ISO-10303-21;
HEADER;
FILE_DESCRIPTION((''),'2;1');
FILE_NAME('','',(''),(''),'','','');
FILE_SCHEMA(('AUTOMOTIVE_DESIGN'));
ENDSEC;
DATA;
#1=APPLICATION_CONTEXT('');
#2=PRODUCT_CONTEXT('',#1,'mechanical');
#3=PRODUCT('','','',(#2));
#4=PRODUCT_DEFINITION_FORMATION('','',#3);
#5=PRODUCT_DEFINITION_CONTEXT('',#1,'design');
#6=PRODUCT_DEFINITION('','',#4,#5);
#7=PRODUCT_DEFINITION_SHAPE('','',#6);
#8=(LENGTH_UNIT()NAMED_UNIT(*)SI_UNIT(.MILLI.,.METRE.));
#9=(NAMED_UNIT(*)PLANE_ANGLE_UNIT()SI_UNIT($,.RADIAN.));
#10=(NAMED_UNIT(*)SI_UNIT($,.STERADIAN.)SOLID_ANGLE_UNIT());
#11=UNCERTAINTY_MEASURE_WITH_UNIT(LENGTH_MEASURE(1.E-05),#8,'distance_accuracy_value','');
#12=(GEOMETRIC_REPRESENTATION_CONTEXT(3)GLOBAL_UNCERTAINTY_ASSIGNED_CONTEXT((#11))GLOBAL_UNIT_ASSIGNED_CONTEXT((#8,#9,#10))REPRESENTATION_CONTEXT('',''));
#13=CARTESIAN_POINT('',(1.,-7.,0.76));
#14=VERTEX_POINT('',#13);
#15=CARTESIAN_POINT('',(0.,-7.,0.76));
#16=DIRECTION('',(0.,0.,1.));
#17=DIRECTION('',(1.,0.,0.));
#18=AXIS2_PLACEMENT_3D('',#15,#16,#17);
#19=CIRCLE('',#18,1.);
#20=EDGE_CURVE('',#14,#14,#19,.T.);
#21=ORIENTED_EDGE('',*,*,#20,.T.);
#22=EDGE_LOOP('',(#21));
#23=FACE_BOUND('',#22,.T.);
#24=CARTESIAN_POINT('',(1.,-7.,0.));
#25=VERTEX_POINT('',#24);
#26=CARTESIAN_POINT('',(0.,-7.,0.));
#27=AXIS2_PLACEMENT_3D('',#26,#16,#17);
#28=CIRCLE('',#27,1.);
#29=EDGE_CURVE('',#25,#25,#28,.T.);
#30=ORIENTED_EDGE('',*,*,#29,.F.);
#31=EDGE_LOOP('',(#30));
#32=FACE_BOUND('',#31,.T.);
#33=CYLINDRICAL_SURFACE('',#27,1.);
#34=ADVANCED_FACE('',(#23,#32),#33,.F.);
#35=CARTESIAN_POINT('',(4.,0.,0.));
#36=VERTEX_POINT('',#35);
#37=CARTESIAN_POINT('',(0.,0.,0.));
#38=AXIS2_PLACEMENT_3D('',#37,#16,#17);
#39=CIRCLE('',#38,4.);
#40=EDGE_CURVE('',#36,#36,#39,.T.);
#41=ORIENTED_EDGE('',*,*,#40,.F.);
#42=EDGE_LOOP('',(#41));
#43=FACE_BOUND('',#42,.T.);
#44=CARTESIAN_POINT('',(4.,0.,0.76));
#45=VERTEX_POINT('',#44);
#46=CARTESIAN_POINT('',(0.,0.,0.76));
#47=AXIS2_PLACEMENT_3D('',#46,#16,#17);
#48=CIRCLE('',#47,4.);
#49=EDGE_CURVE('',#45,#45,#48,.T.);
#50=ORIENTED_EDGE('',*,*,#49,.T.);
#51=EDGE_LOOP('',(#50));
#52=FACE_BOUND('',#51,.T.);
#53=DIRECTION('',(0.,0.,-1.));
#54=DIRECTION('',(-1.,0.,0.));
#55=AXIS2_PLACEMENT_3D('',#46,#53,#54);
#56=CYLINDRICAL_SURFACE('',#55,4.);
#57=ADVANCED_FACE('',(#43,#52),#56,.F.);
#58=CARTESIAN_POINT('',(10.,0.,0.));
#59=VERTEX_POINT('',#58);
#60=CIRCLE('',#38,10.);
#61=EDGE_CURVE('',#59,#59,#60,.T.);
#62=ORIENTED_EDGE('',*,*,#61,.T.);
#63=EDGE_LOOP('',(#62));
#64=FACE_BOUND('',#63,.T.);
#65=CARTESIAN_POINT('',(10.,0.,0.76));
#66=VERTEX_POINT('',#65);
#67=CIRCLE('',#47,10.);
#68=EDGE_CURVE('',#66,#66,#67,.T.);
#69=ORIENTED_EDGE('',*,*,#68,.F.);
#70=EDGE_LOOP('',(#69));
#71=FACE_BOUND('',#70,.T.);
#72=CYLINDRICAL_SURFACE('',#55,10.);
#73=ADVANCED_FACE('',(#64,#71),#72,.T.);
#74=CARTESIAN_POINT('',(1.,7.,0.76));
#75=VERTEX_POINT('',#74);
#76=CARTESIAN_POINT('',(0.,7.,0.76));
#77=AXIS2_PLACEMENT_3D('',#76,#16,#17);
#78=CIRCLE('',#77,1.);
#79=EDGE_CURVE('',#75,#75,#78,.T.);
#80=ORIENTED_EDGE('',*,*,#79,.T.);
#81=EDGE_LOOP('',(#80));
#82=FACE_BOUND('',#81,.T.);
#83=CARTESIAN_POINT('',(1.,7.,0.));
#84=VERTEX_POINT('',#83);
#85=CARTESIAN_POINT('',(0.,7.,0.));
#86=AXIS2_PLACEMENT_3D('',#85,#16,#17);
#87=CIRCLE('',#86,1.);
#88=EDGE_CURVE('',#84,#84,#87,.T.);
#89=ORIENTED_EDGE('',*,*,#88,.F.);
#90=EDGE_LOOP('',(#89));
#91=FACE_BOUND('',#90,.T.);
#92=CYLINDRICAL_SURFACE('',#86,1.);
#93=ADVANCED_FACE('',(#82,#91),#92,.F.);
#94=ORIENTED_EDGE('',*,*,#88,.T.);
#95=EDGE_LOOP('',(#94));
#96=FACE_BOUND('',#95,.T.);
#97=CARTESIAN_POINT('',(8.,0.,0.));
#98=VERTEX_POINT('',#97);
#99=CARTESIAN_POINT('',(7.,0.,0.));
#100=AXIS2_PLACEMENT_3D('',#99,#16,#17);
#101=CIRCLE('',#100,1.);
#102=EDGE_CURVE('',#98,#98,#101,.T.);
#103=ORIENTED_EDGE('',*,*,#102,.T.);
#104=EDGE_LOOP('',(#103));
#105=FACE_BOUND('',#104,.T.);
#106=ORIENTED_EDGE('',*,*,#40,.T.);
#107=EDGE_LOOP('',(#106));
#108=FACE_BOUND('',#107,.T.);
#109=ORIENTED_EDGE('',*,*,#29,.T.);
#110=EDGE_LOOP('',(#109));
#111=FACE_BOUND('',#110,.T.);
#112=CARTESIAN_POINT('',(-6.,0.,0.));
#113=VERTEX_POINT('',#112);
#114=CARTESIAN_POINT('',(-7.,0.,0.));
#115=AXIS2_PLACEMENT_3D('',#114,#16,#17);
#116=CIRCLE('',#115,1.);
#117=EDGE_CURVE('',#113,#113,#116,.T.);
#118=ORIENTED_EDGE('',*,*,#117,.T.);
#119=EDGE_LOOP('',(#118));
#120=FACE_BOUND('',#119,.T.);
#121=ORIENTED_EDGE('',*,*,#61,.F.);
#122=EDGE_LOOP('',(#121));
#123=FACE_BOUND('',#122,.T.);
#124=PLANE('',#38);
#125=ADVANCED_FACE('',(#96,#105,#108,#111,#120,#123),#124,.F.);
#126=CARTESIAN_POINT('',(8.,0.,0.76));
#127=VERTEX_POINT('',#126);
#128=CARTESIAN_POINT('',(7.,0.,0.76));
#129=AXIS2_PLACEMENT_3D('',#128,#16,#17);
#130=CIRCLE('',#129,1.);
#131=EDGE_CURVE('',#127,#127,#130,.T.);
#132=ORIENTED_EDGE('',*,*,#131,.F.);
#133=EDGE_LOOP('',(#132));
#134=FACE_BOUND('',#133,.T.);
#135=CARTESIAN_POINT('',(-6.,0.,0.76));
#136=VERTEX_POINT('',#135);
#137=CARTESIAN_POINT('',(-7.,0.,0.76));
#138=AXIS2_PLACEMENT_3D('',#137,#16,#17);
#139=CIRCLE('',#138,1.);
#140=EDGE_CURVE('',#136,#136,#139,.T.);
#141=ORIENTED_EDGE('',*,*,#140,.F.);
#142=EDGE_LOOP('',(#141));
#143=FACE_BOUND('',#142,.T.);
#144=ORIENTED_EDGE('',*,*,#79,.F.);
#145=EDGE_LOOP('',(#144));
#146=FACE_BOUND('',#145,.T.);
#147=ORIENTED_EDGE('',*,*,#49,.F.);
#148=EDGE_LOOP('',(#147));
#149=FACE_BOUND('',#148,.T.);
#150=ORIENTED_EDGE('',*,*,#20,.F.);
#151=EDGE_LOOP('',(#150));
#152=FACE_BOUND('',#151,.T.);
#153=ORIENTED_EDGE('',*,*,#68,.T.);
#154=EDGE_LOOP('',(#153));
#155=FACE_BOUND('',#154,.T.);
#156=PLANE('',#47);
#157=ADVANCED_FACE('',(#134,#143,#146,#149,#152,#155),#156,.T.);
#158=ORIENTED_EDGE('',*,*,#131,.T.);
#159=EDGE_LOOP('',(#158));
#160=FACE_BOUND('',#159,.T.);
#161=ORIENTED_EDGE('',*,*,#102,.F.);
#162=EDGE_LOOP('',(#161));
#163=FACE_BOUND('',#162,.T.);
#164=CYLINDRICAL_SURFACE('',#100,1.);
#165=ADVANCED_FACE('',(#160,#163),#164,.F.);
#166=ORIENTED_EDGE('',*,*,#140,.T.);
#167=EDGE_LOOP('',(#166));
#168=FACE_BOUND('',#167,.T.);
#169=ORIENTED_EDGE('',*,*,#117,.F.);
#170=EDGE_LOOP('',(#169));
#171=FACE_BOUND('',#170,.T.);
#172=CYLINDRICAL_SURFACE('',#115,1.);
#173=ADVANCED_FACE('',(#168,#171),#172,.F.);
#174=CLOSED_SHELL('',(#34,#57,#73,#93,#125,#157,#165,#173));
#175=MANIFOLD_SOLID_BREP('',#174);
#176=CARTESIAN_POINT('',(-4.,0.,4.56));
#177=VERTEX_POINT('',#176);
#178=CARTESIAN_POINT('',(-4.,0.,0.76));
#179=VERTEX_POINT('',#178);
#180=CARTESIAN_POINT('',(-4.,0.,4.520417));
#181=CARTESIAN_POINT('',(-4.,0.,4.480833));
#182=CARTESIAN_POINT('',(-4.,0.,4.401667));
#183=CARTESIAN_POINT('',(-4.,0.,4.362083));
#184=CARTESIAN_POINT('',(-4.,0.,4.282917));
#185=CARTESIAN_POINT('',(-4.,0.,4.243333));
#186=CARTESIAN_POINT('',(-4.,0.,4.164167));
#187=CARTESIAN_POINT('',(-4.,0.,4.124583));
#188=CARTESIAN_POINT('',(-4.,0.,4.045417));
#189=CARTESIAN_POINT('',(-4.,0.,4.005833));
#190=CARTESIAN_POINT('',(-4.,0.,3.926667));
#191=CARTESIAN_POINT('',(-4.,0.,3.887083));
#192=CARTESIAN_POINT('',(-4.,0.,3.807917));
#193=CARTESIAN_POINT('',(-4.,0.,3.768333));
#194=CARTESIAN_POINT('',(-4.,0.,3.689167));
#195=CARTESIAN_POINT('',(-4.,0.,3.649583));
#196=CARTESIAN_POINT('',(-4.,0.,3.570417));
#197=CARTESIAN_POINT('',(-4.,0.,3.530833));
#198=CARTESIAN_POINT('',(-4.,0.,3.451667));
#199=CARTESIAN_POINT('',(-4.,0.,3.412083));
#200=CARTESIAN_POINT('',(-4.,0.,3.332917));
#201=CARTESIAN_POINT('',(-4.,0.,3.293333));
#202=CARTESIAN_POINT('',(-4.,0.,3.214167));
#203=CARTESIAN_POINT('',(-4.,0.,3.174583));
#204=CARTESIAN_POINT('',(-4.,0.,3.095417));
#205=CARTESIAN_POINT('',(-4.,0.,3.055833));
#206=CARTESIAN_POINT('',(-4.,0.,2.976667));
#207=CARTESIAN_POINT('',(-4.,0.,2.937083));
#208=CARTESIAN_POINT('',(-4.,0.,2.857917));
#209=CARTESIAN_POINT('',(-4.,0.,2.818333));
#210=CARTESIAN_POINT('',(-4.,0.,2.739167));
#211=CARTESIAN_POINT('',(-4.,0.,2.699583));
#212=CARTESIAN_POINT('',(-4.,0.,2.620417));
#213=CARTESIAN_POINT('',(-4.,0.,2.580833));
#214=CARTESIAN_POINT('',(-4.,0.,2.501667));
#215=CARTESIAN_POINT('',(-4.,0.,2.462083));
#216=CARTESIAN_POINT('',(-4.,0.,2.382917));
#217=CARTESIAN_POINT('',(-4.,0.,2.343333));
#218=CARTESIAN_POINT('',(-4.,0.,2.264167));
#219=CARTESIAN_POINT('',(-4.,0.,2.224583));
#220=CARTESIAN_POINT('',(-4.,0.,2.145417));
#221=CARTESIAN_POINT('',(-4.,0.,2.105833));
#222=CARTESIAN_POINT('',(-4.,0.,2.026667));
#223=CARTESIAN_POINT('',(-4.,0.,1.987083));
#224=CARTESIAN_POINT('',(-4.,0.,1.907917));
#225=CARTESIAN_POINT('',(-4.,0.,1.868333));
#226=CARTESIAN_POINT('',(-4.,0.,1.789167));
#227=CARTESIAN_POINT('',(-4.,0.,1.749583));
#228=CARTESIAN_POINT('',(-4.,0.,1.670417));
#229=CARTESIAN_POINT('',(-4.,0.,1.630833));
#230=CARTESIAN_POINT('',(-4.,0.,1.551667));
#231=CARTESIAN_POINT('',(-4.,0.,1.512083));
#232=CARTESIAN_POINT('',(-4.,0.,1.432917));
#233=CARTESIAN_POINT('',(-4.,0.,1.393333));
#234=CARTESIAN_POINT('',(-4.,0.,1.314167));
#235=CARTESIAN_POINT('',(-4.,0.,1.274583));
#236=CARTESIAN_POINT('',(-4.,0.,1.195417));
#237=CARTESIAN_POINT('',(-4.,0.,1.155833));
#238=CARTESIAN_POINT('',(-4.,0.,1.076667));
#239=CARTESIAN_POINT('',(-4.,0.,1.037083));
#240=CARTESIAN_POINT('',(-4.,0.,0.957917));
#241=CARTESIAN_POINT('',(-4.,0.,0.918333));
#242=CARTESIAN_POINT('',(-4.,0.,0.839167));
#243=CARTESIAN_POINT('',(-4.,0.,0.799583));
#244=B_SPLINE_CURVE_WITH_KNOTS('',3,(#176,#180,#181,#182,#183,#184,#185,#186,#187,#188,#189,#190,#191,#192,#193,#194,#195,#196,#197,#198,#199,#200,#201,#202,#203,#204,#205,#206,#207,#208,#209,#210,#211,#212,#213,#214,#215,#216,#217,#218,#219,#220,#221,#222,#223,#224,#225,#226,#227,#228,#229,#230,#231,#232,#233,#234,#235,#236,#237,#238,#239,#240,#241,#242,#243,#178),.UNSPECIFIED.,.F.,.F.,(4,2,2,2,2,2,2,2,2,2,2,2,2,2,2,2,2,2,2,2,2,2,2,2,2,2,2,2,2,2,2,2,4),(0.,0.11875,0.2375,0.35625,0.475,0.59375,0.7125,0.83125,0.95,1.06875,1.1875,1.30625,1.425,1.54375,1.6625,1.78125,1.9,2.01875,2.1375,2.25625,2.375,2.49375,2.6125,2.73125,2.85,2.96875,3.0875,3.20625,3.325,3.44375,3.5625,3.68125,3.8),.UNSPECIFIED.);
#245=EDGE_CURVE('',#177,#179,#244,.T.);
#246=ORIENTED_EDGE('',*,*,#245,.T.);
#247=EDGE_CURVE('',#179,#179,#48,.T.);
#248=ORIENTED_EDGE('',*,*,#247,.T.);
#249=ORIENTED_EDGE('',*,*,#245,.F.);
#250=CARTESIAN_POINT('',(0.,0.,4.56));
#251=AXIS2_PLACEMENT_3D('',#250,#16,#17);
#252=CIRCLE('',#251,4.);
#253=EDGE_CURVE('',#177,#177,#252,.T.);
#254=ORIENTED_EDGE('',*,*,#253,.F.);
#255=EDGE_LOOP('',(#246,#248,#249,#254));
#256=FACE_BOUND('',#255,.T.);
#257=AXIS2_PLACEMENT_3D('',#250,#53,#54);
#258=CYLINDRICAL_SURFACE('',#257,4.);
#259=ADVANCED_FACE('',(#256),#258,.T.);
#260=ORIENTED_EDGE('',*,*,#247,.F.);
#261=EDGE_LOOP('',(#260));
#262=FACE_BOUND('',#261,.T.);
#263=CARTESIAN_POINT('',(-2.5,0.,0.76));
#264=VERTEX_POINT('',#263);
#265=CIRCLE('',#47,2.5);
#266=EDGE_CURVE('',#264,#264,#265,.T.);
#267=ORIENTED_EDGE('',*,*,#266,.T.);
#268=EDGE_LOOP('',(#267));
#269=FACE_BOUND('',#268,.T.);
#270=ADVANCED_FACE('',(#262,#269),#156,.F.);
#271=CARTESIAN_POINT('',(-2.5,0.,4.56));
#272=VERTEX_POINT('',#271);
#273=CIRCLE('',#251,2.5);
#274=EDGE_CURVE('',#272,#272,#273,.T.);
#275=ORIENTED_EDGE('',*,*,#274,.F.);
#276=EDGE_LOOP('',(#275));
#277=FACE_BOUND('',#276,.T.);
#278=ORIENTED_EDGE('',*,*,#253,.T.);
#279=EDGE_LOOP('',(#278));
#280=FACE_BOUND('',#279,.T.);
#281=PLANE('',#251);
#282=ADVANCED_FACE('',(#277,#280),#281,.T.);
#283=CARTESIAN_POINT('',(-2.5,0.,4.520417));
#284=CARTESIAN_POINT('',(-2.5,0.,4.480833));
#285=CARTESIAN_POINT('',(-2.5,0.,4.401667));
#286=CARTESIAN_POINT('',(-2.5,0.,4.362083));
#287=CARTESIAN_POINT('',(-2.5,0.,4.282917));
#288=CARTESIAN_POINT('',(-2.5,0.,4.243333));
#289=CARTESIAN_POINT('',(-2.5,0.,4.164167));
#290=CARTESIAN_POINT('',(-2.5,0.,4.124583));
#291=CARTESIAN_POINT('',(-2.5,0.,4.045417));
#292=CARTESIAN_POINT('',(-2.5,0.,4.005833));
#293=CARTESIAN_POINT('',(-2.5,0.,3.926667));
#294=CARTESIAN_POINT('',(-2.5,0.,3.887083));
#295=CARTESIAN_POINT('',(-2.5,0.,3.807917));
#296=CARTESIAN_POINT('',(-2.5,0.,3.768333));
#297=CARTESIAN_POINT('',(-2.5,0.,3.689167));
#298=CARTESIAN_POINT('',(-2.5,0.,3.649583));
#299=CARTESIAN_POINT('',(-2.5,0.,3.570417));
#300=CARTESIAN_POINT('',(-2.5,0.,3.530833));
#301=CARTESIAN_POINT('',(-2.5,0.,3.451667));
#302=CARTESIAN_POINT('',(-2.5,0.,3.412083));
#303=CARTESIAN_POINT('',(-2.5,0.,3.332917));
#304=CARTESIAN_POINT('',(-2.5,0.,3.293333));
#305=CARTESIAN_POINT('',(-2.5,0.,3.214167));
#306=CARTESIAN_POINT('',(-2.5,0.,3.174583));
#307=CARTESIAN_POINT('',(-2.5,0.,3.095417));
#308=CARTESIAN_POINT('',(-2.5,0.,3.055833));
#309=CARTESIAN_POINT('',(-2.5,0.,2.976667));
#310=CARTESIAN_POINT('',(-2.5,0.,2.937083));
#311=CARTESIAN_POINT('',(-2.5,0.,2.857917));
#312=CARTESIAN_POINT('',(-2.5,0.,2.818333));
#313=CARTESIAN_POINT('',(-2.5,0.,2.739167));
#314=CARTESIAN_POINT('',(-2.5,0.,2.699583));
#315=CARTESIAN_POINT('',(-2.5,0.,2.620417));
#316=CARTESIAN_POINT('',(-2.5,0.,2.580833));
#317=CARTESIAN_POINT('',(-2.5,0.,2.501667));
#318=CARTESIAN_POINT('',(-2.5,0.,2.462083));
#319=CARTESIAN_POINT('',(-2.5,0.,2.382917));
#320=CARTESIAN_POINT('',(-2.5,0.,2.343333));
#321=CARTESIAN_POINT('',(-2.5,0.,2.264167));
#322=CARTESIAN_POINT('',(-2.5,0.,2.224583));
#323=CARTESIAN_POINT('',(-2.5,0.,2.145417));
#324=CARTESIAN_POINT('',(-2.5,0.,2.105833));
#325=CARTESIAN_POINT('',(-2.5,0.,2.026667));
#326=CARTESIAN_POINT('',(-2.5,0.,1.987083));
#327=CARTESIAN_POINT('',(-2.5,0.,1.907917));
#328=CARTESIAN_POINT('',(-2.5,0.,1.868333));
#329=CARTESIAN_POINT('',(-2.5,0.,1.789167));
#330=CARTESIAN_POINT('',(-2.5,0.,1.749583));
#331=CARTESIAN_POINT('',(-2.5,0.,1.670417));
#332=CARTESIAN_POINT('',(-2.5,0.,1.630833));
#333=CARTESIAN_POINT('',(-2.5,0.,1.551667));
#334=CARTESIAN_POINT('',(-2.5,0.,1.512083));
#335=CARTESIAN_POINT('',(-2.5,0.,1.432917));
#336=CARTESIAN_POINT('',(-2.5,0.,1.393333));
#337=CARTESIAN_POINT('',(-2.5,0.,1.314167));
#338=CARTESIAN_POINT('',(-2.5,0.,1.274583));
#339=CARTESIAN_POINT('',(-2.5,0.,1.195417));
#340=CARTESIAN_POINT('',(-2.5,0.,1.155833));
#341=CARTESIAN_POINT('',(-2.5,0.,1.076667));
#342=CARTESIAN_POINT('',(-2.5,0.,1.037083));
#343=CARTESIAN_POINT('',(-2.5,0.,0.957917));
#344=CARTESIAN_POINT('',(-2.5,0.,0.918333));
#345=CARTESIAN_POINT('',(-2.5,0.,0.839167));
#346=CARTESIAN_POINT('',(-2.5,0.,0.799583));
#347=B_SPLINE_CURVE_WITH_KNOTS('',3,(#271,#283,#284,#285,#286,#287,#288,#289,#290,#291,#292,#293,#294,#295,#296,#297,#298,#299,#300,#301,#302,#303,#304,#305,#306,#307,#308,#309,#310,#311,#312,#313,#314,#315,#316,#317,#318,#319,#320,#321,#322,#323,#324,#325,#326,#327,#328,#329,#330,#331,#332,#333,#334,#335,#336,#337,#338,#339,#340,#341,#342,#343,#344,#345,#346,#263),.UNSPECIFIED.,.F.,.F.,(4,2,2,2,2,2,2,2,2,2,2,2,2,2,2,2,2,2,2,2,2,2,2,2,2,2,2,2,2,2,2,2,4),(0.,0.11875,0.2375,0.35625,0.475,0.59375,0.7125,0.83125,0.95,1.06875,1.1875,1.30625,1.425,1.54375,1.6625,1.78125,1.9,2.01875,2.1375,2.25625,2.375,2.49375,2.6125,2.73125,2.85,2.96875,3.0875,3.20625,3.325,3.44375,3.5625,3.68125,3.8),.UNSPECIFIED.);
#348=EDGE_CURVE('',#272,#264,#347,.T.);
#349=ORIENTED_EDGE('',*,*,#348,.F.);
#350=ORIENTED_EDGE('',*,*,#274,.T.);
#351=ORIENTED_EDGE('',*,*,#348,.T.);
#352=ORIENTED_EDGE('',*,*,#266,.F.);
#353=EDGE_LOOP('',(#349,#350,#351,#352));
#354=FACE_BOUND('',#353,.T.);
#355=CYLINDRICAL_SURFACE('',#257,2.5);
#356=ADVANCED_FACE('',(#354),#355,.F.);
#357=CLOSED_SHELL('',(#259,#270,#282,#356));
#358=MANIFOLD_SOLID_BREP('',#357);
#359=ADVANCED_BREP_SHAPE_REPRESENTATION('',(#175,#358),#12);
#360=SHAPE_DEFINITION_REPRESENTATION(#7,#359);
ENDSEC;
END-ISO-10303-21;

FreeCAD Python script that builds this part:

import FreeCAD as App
import Part
import Sketcher

V = App.Vector

doc = App.newDocument("Part")
body = doc.addObject("PartDesign::Body", "Body")

# Sketch on XY plane
sketch1 = body.newObject("Sketcher::SketchObject", "Sketch")
sketch1.AttachmentSupport = (doc.getObject("XY_Plane"), [""])
sketch1.MapMode = "FlatFace"
sketch1.addGeometry(Part.Circle(V(0, 0, 0), V(0, 0, 1), 10), False)
sketch1.addGeometry(Part.Circle(V(0, 0, 0), V(0, 0, 1), 4), False)
sketch1.addConstraint(Sketcher.Constraint("Coincident", 0, 3, -1, 1))
sketch1.addConstraint(Sketcher.Constraint("Coincident", 1, 3, -1, 1))
sketch1.addConstraint(Sketcher.Constraint("Diameter", 0, 20.0))
sketch1.addConstraint(Sketcher.Constraint("Diameter", 1, 8.0))
pad1 = body.newObject("PartDesign::Pad", "Pad")
pad1.Profile = sketch1
pad1.Length = 0.76

# Sketch on XY plane
sketch2 = body.newObject("Sketcher::SketchObject", "Sketch001")
sketch2.AttachmentSupport = (doc.getObject("XY_Plane"), [""])
sketch2.MapMode = "FlatFace"
sketch2.AttachmentOffset = App.Placement(V(0, 0, 0.76), App.Rotation())
sketch2.addGeometry(Part.Circle(V(-7, 0, 0), V(0, 0, 1), 1), False)
sketch2.addGeometry(Part.Circle(V(0, 7, 0), V(0, 0, 1), 1), False)
sketch2.addGeometry(Part.Circle(V(7, 0, 0), V(0, 0, 1), 1), False)
sketch2.addGeometry(Part.Circle(V(0, -7, 0), V(0, 0, 1), 1), False)
sketch2.addConstraint(Sketcher.Constraint("Equal", 0, 1))
sketch2.addConstraint(Sketcher.Constraint("Equal", 1, 2))
sketch2.addConstraint(Sketcher.Constraint("Equal", 2, 3))
sketch2.addConstraint(Sketcher.Constraint("Symmetric", 0, 3, 2, 3, -1, 1))
sketch2.addConstraint(Sketcher.Constraint("Symmetric", 1, 3, 3, 3, -1, 1))
sketch2.addConstraint(Sketcher.Constraint("PointOnObject", 0, 3, -1))
sketch2.addConstraint(Sketcher.Constraint("PointOnObject", 1, 3, -2))
sketch2.addConstraint(Sketcher.Constraint("Diameter", 0, 2.0))
sketch2.addConstraint(Sketcher.Constraint("DistanceX", 0, 3, -1, 1, 7.0))
sketch2.addConstraint(Sketcher.Constraint("DistanceY", -1, 1, 1, 3, 7.0))
pocket1 = body.newObject("PartDesign::Pocket", "Pocket")
pocket1.Profile = sketch2
pocket1.Length = 0.76
body2 = doc.addObject("PartDesign::Body", "Body001")

# Sketch on XY plane
sketch3 = body2.newObject("Sketcher::SketchObject", "Sketch002")
sketch3.AttachmentSupport = (doc.getObject("XY_Plane001"), [""])
sketch3.MapMode = "FlatFace"
sketch3.AttachmentOffset = App.Placement(V(0, 0, 0.76), App.Rotation())
sketch3.addGeometry(Part.Circle(V(0, 0, 0), V(0, 0, 1), 4), False)
sketch3.addGeometry(Part.Circle(V(0, 0, 0), V(0, 0, 1), 2.5), False)
sketch3.addConstraint(Sketcher.Constraint("Coincident", 0, 3, -1, 1))
sketch3.addConstraint(Sketcher.Constraint("Coincident", 1, 3, -1, 1))
sketch3.addConstraint(Sketcher.Constraint("Diameter", 0, 8.0))
sketch3.addConstraint(Sketcher.Constraint("Diameter", 1, 5.0))
pad2 = body2.newObject("PartDesign::Pad", "Pad001")
pad2.Profile = sketch3
pad2.Length = 3.8

doc.recompute()
